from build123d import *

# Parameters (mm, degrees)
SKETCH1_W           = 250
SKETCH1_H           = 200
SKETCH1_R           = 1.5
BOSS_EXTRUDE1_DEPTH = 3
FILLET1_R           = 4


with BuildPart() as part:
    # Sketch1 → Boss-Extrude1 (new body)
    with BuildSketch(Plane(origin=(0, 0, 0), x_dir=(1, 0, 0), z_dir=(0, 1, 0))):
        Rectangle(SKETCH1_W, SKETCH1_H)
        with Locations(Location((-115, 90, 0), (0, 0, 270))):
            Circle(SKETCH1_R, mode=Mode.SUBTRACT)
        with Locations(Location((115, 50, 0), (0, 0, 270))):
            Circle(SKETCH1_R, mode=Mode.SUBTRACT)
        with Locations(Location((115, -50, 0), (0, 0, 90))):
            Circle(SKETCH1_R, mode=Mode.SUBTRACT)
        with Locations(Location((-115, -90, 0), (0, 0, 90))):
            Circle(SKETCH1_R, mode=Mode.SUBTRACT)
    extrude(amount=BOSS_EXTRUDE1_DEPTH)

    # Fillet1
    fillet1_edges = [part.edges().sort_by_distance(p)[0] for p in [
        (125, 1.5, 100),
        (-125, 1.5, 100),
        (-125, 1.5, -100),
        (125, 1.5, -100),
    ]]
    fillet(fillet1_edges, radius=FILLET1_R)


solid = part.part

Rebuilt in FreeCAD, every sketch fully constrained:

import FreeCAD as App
import Part
import Sketcher
from FreeCAD import Vector


def edges_at(feature, points):
    """Names of the edges that pass closest to the given points."""
    edges = feature.Shape.Edges
    near = lambda p: min(range(len(edges)), key=lambda i: edges[i].distToShape(Part.Vertex(*p))[0])
    return sorted({f"Edge{near(p) + 1}" for p in points})


def add_polygon(sketch, points):
    """Adds a closed chain of lines whose ends are joined by coincident constraints."""
    first, n = sketch.GeometryCount, len(points)
    for a, b in zip(points, points[1:] + points[:1]):
        sketch.addGeometry(Part.LineSegment(App.Vector(*a, 0), App.Vector(*b, 0)), False)
    for i in range(n):
        sketch.addConstraint(Sketcher.Constraint("Coincident", first + i, 2, first + (i + 1) % n, 1))

doc = App.newDocument("Part")
body = doc.addObject("PartDesign::Body", "Body")

# Sketch on XZ plane
sketch1 = body.newObject("Sketcher::SketchObject", "Sketch")
sketch1.AttachmentSupport = (doc.getObject("XZ_Plane"), [""])
sketch1.MapMode = "FlatFace"
add_polygon(sketch1, [(-125, -100), (-125, 100), (125, 100), (125, -100)])  # lines 0-3
sketch1.addGeometry(Part.Circle(Vector(-115, 90, 0), Vector(0, 0, 1), 1.5), False)  # 4
sketch1.addGeometry(Part.Circle(Vector(115, 50, 0), Vector(0, 0, 1), 1.5), False)  # 5
sketch1.addGeometry(Part.Circle(Vector(-115, -90, 0), Vector(0, 0, 1), 1.5), False)  # 6
sketch1.addGeometry(Part.Circle(Vector(115, -50, 0), Vector(0, 0, 1), 1.5), False)  # 7
sketch1.addConstraint([
    Sketcher.Constraint("Vertical", 0),
    Sketcher.Constraint("Horizontal", 1),
    Sketcher.Constraint("Vertical", 2),
    Sketcher.Constraint("Horizontal", 3),
    Sketcher.Constraint("Equal", 4, 5),
    Sketcher.Constraint("Equal", 5, 6),
    Sketcher.Constraint("Equal", 6, 7),
    Sketcher.Constraint("Symmetric", 0, 2, 2, 2, -1, 1),
    Sketcher.Constraint("Symmetric", 4, 3, 6, 3, -1),
    Sketcher.Constraint("Symmetric", 5, 3, 7, 3, -1),
    Sketcher.Constraint("Diameter", 4, 3.0),
    Sketcher.Constraint("DistanceX", 1, 1, 1, 2, 250.0),
    Sketcher.Constraint("DistanceY", 0, 1, 0, 2, 200.0),
    Sketcher.Constraint("DistanceX", 4, 3, -1, 1, 115.0),
    Sketcher.Constraint("DistanceY", -1, 1, 4, 3, 90.0),
    Sketcher.Constraint("DistanceX", -1, 1, 5, 3, 115.0),
    Sketcher.Constraint("DistanceY", -1, 1, 5, 3, 50.0),
])
pad1 = body.newObject("PartDesign::Pad", "Pad")
pad1.Profile = sketch1
pad1.Length = 3
pad1.Reversed = True
doc.recompute()

fillet = body.newObject("PartDesign::Fillet", "Fillet")
fillet.Base = (pad1, edges_at(pad1, [
    (125, 1.5, 100),
    (-125, 1.5, 100),
    (-125, 1.5, -100),
    (125, 1.5, -100),
]))
fillet.Radius = 4

doc.recompute()
